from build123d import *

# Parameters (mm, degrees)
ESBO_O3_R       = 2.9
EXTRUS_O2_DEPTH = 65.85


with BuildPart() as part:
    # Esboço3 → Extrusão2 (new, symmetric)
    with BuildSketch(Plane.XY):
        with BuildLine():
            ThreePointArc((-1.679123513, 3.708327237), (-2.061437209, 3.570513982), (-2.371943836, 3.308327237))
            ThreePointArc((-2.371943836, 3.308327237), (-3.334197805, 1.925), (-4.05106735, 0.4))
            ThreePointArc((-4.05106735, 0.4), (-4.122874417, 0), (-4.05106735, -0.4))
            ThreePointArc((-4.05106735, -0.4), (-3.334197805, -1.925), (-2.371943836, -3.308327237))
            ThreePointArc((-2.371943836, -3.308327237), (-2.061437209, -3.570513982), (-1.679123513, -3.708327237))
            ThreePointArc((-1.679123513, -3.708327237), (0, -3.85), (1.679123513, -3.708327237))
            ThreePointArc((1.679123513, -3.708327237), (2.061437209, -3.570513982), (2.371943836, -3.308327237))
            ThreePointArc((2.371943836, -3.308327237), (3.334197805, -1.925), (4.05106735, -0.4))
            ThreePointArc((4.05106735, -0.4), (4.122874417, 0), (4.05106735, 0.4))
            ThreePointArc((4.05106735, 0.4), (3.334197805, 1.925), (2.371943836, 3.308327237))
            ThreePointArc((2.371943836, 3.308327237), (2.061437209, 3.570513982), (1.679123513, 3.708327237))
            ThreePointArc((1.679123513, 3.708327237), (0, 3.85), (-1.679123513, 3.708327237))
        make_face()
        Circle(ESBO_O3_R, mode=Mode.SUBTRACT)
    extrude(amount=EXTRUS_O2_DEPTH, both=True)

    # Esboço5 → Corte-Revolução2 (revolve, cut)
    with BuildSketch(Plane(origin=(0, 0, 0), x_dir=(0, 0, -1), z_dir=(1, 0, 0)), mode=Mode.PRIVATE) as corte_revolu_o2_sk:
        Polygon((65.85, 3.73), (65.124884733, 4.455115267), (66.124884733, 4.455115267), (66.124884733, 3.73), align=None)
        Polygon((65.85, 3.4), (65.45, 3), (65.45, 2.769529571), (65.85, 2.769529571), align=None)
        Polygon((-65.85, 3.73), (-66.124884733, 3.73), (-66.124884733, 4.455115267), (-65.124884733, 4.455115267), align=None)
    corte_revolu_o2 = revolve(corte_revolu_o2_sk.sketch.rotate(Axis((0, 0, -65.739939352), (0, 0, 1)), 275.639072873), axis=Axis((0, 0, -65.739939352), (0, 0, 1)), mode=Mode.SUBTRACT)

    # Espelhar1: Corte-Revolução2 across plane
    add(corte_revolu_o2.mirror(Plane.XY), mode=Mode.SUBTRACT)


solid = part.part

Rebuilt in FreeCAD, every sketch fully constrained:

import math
import FreeCAD as App
import Part
import Sketcher
Q = App.Units.Quantity


def add_polygon(sketch, points):
    """Adds a closed chain of lines whose ends are joined by coincident constraints."""
    first, n = sketch.GeometryCount, len(points)
    for a, b in zip(points, points[1:] + points[:1]):
        sketch.addGeometry(Part.LineSegment(App.Vector(*a, 0), App.Vector(*b, 0)), False)
    for i in range(n):
        sketch.addConstraint(Sketcher.Constraint("Coincident", first + i, 2, first + (i + 1) % n, 1))

doc = App.newDocument("Part")
body = doc.addObject("PartDesign::Body", "Body")

# Sketch on XY plane
sketch1 = body.newObject("Sketcher::SketchObject", "Sketch")
sketch1.AttachmentSupport = (doc.getObject("XY_Plane"), [""])
sketch1.MapMode = "FlatFace"
sketch1.addGeometry(Part.ArcOfCircle(Part.Circle(App.Vector(-1.5, 2.6, 0), App.Vector(0, 0, 1), 1.1), math.radians(100), math.radians(140)), False)
sketch1.addGeometry(Part.ArcOfCircle(Part.Circle(App.Vector(5.3, -3.1, 0), App.Vector(0, 0, 1), 10), math.radians(140.35), math.radians(159.65)), False)
sketch1.addGeometry(Part.ArcOfCircle(Part.Circle(App.Vector(-3, 0, 0), App.Vector(0, 0, 1), 1.2), math.radians(160), math.radians(200)), False)
sketch1.addGeometry(Part.ArcOfCircle(Part.Circle(App.Vector(5.3, 3.1, 0), App.Vector(0, 0, 1), 10), math.radians(-159.65), math.radians(-140.35)), False)
sketch1.addGeometry(Part.ArcOfCircle(Part.Circle(App.Vector(-1.5, -2.6, 0), App.Vector(0, 0, 1), 1.1), math.radians(-140), math.radians(-100)), False)
sketch1.addGeometry(Part.ArcOfCircle(Part.Circle(App.Vector(0, 6.2, 0), App.Vector(0, 0, 1), 10), math.radians(-99.65), math.radians(-80.35)), False)
sketch1.addGeometry(Part.ArcOfCircle(Part.Circle(App.Vector(1.5, -2.6, 0), App.Vector(0, 0, 1), 1.1), math.radians(-80), math.radians(-40)), False)
sketch1.addGeometry(Part.ArcOfCircle(Part.Circle(App.Vector(-5.3, 3.1, 0), App.Vector(0, 0, 1), 10), math.radians(-39.65), math.radians(-20.35)), False)
sketch1.addGeometry(Part.ArcOfCircle(Part.Circle(App.Vector(3, 0, 0), App.Vector(0, 0, 1), 1.2), math.radians(-20), math.radians(20)), False)
sketch1.addGeometry(Part.ArcOfCircle(Part.Circle(App.Vector(-5.3, -3.1, 0), App.Vector(0, 0, 1), 10), math.radians(20.35), math.radians(39.65)), False)
sketch1.addGeometry(Part.ArcOfCircle(Part.Circle(App.Vector(1.5, 2.6, 0), App.Vector(0, 0, 1), 1.1), math.radians(40), math.radians(80)), False)
sketch1.addGeometry(Part.ArcOfCircle(Part.Circle(App.Vector(0, -6.2, 0), App.Vector(0, 0, 1), 10), math.radians(80.35), math.radians(99.65)), False)
sketch1.addGeometry(Part.Circle(App.Vector(0, 0, 0), App.Vector(0, 0, 1), 2.9), False)
sketch1.addConstraint(Sketcher.Constraint("Tangent", 0, 2, 1, 1))
sketch1.addConstraint(Sketcher.Constraint("Tangent", 1, 2, 2, 1))
sketch1.addConstraint(Sketcher.Constraint("Tangent", 2, 2, 3, 1))
sketch1.addConstraint(Sketcher.Constraint("Tangent", 3, 2, 4, 1))
sketch1.addConstraint(Sketcher.Constraint("Tangent", 4, 2, 5, 1))
sketch1.addConstraint(Sketcher.Constraint("Tangent", 5, 2, 6, 1))
sketch1.addConstraint(Sketcher.Constraint("Tangent", 6, 2, 7, 1))
sketch1.addConstraint(Sketcher.Constraint("Tangent", 7, 2, 8, 1))
sketch1.addConstraint(Sketcher.Constraint("Tangent", 8, 2, 9, 1))
sketch1.addConstraint(Sketcher.Constraint("Tangent", 9, 2, 10, 1))
sketch1.addConstraint(Sketcher.Constraint("Tangent", 10, 2, 11, 1))
sketch1.addConstraint(Sketcher.Constraint("Tangent", 11, 2, 0, 1))
sketch1.addConstraint(Sketcher.Constraint("Coincident", 12, 3, -1, 1))
sketch1.addConstraint(Sketcher.Constraint("Equal", 0, 2))
sketch1.addConstraint(Sketcher.Constraint("Equal", 1, 3))
sketch1.addConstraint(Sketcher.Constraint("Equal", 2, 4))
sketch1.addConstraint(Sketcher.Constraint("Equal", 3, 5))
sketch1.addConstraint(Sketcher.Constraint("Equal", 4, 6))
sketch1.addConstraint(Sketcher.Constraint("Equal", 5, 7))
sketch1.addConstraint(Sketcher.Constraint("Equal", 6, 8))
sketch1.addConstraint(Sketcher.Constraint("Equal", 7, 9))
sketch1.addConstraint(Sketcher.Constraint("Equal", 8, 10))
sketch1.addConstraint(Sketcher.Constraint("Equal", 9, 11))
sketch1.addConstraint(Sketcher.Constraint("Symmetric", 0, 3, 6, 3, -1, 1))
sketch1.addConstraint(Sketcher.Constraint("Symmetric", 2, 3, 8, 3, -1, 1))
sketch1.addConstraint(Sketcher.Constraint("Symmetric", 4, 3, 10, 3, -1, 1))
sketch1.addConstraint(Sketcher.Constraint("Symmetric", 4, 3, 6, 3, -2))
sketch1.addConstraint(Sketcher.Constraint("PointOnObject", 2, 3, -1))
sketch1.addConstraint(Sketcher.Constraint("Diameter", 12, Q("5.8 mm")))
sketch1.addConstraint(Sketcher.Constraint("Radius", 0, Q("1.15 mm")))
sketch1.addConstraint(Sketcher.Constraint("DistanceY", -1, 1, 1, 2, Q("0.4 mm")))
sketch1.addConstraint(Sketcher.Constraint("DistanceY", 4, 2, 3, 2, Q("0.4 mm")))
sketch1.addConstraint(Sketcher.Constraint("Radius", 1, Q("10.021429 mm")))
sketch1.addConstraint(Sketcher.Constraint("DistanceY", 1, 3, 0, 3, Q("5.660299 mm")))
pad1 = body.newObject("PartDesign::Pad", "Pad")
pad1.Profile = sketch1
pad1.Length = 131.7
pad1.Midplane = True

# Sketch on YZ plane
sketch2 = body.newObject("Sketcher::SketchObject", "Sketch001")
sketch2.AttachmentSupport = (doc.getObject("YZ_Plane"), [""])
sketch2.MapMode = "FlatFace"
add_polygon(sketch2, [(4.46, -65.12), (3.73, -65.85), (3.73, -66.12), (4.46, -66.12)])  # lines 0-3
add_polygon(sketch2, [(3.4, -65.85), (3, -65.45), (2.77, -65.45), (2.77, -65.85)])  # lines 4-7
add_polygon(sketch2, [(3.73, 66.12), (3.73, 65.85), (4.46, 65.12), (4.46, 66.12)])  # lines 8-11
sketch2.addConstraint(Sketcher.Constraint("Vertical", 1))
sketch2.addConstraint(Sketcher.Constraint("Horizontal", 2))
sketch2.addConstraint(Sketcher.Constraint("Vertical", 3))
sketch2.addConstraint(Sketcher.Constraint("Horizontal", 5))
sketch2.addConstraint(Sketcher.Constraint("Vertical", 6))
sketch2.addConstraint(Sketcher.Constraint("Horizontal", 7))
sketch2.addConstraint(Sketcher.Constraint("Vertical", 8))
sketch2.addConstraint(Sketcher.Constraint("Vertical", 10))
sketch2.addConstraint(Sketcher.Constraint("Horizontal", 11))
sketch2.addConstraint(Sketcher.Constraint("Symmetric", 0, 2, 8, 2, -1))
sketch2.addConstraint(Sketcher.Constraint("Symmetric", 3, 2, 9, 2, -1))
sketch2.addConstraint(Sketcher.Constraint("Perpendicular", 0, 4))
sketch2.addConstraint(Sketcher.Constraint("Parallel", 4, 9))
sketch2.addConstraint(Sketcher.Constraint("Horizontal", 0, 2, 6, 2))
sketch2.addConstraint(Sketcher.Constraint("Equal", 1, 8))
sketch2.addConstraint(Sketcher.Constraint("DistanceY", 3, 1, 3, 2, Q("1 mm")))
sketch2.addConstraint(Sketcher.Constraint("DistanceY", 6, 2, 6, 1, Q("0.4 mm")))
sketch2.addConstraint(Sketcher.Constraint("DistanceX", -1, 1, 4, 2, Q("3 mm")))
sketch2.addConstraint(Sketcher.Constraint("DistanceY", 4, 2, 8, 2, Q("131.3 mm")))
sketch2.addConstraint(Sketcher.Constraint("DistanceX", -1, 1, 0, 2, Q("3.73 mm")))
sketch2.addConstraint(Sketcher.Constraint("DistanceX", 5, 2, 5, 1, Q("0.23047 mm")))
sketch2.addConstraint(Sketcher.Constraint("DistanceX", 2, 1, 2, 2, Q("0.725115 mm")))
groove = body.newObject("PartDesign::Groove", "Groove")
groove.Profile = sketch2
groove.ReferenceAxis = (sketch2, ["V_Axis"])
groove.Angle = 360
doc.recompute()

mirrored = body.newObject("PartDesign::Mirrored", "Mirrored")
mirrored.Originals = [groove]
mirrored.MirrorPlane = (doc.getObject("XY_Plane"), [""])
body.Tip = mirrored

doc.recompute()
